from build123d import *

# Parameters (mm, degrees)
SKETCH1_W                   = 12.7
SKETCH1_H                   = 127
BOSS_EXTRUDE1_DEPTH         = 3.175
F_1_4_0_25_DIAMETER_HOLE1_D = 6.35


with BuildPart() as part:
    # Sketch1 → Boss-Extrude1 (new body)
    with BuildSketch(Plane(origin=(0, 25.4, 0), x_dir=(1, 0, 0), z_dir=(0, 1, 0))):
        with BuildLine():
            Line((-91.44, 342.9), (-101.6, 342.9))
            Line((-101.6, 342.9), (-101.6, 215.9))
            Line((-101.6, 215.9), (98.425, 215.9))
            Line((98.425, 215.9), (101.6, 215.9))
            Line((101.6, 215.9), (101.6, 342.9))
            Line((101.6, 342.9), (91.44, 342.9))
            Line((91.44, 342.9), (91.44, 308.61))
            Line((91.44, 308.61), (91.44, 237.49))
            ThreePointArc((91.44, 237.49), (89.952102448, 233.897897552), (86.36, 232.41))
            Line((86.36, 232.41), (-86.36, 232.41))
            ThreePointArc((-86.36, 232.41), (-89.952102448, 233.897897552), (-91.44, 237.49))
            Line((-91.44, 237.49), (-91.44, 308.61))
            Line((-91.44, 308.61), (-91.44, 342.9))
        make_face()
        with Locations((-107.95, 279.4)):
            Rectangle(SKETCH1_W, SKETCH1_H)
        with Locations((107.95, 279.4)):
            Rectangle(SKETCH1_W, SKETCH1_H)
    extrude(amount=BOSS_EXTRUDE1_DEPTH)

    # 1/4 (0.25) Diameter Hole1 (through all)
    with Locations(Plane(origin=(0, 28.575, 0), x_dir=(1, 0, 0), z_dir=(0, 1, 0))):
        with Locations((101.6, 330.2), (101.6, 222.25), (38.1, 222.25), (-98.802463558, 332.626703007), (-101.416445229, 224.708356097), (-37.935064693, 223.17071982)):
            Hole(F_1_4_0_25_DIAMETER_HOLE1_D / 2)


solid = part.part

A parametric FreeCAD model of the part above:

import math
import FreeCAD as App
import Part
import Sketcher
Q = App.Units.Quantity

doc = App.newDocument("Part")
body = doc.addObject("PartDesign::Body", "Body")

# Sketch on XZ plane
sketch1 = doc.addObject("Sketcher::SketchObject", "Sketch")
body.addObject(sketch1)
sketch1.AttachmentSupport = (doc.XZ_Plane, [""])
sketch1.MapMode = "FlatFace"
sketch1.AttachmentOffset = App.Placement(App.Vector(0, 0, -1 * 25.4), App.Rotation())
sketch1.addGeometry([
    Part.LineSegment(App.Vector(-91, -343, 0), App.Vector(-114, -343, 0)),  # 0
    Part.LineSegment(App.Vector(-114, -343, 0), App.Vector(-114, -216, 0)),  # 1
    Part.LineSegment(App.Vector(-114, -216, 0), App.Vector(114, -216, 0)),  # 2
    Part.LineSegment(App.Vector(114, -216, 0), App.Vector(114, -343, 0)),  # 3
    Part.LineSegment(App.Vector(114, -343, 0), App.Vector(91, -343, 0)),  # 4
    Part.LineSegment(App.Vector(91, -343, 0), App.Vector(91, -237, 0)),  # 5
    Part.ArcOfCircle(Part.Circle(App.Vector(86, -237, 0), App.Vector(0, 0, 1), 5), math.radians(0), math.radians(90)),  # 6
    Part.LineSegment(App.Vector(86, -232, 0), App.Vector(-86, -232, 0)),  # 7
    Part.ArcOfCircle(Part.Circle(App.Vector(-86, -237, 0), App.Vector(0, 0, 1), 5), math.radians(90), math.radians(180)),  # 8
    Part.LineSegment(App.Vector(-91, -237, 0), App.Vector(-91, -343, 0)),  # 9
], False)
sketch1.addConstraint([
    Sketcher.Constraint("Coincident", 0, 2, 1, 1),
    Sketcher.Constraint("Coincident", 1, 2, 2, 1),
    Sketcher.Constraint("Coincident", 2, 2, 3, 1),
    Sketcher.Constraint("Coincident", 3, 2, 4, 1),
    Sketcher.Constraint("Coincident", 4, 2, 5, 1),
    Sketcher.Constraint("Tangent", 5, 2, 6, 1),
    Sketcher.Constraint("Tangent", 6, 2, 7, 1),
    Sketcher.Constraint("Tangent", 7, 2, 8, 1),
    Sketcher.Constraint("Tangent", 8, 2, 9, 1),
    Sketcher.Constraint("Coincident", 9, 2, 0, 1),
    Sketcher.Constraint("Horizontal", 0),
    Sketcher.Constraint("Vertical", 1),
    Sketcher.Constraint("Horizontal", 2),
    Sketcher.Constraint("Vertical", 3),
    Sketcher.Constraint("Horizontal", 4),
    Sketcher.Constraint("Vertical", 5),
    Sketcher.Constraint("Horizontal", 7),
    Sketcher.Constraint("Vertical", 9),
    Sketcher.Constraint("Equal", 6, 8),
    Sketcher.Constraint("Symmetric", 0, 2, 3, 2, -2),
    Sketcher.Constraint("Equal", 0, 4),
    Sketcher.Constraint("Radius", 6, Q("0.2 in")),
    Sketcher.Constraint("DistanceX", 2, 1, 2, 2, Q("9 in")),
    Sketcher.Constraint("DistanceY", 1, 1, 1, 2, Q("5 in")),
    Sketcher.Constraint("DistanceX", 0, 2, 0, 1, Q("0.9 in")),
    Sketcher.Constraint("DistanceY", 5, 1, 5, 2, Q("4.15 in")),
    Sketcher.Constraint("DistanceY", 0, 2, -1, 1, Q("13.5 in")),
])
pad1 = doc.addObject("PartDesign::Pad", "Pad")
body.addObject(pad1)
pad1.Profile = sketch1
pad1.Length = Q("0.125 in")
pad1.Reversed = True

# Sketch on XZ plane
sketch2 = doc.addObject("Sketcher::SketchObject", "Sketch001")
body.addObject(sketch2)
sketch2.AttachmentSupport = (doc.XZ_Plane, [""])
sketch2.MapMode = "FlatFace"
sketch2.AttachmentOffset = App.Placement(App.Vector(0, 0, -1.125 * 25.4), App.Rotation())
sketch2.addGeometry([
    Part.Circle(App.Vector(101.6, -330.2, 0), App.Vector(0, 0, 1), 3.2),  # 0
    Part.Circle(App.Vector(101.6, -222.2, 0), App.Vector(0, 0, 1), 3.2),  # 1
    Part.Circle(App.Vector(38.1, -222.2, 0), App.Vector(0, 0, 1), 3.2),  # 2
    Part.Circle(App.Vector(-98.8, -332.6, 0), App.Vector(0, 0, 1), 3.2),  # 3
    Part.Circle(App.Vector(-101.4, -224.7, 0), App.Vector(0, 0, 1), 3.2),  # 4
    Part.Circle(App.Vector(-37.9, -223.2, 0), App.Vector(0, 0, 1), 3.2),  # 5
], False)
sketch2.addConstraint([
    Sketcher.Constraint("Equal", 0, 1),
    Sketcher.Constraint("Equal", 1, 2),
    Sketcher.Constraint("Equal", 2, 3),
    Sketcher.Constraint("Equal", 3, 4),
    Sketcher.Constraint("Equal", 4, 5),
    Sketcher.Constraint("Horizontal", 1, 3, 2, 3),
    Sketcher.Constraint("Vertical", 0, 3, 1, 3),
    Sketcher.Constraint("Diameter", 0, Q("0.25 in")),
    Sketcher.Constraint("DistanceX", -1, 1, 0, 3, Q("4 in")),
    Sketcher.Constraint("DistanceY", 0, 3, -1, 1, Q("13 in")),
    Sketcher.Constraint("DistanceX", -1, 1, 2, 3, Q("1.5 in")),
    Sketcher.Constraint("DistanceY", 1, 3, -1, 1, Q("8.75 in")),
    Sketcher.Constraint("DistanceX", 3, 3, 5, 3, Q("60.867399 mm")),
    Sketcher.Constraint("DistanceY", 5, 3, -1, 1, Q("223.17072 mm")),
    Sketcher.Constraint("DistanceX", 4, 3, 3, 3, Q("2.613982 mm")),
    Sketcher.Constraint("DistanceX", 3, 3, -1, 1, Q("98.802464 mm")),
    Sketcher.Constraint("DistanceY", 3, 3, -1, 1, Q("332.626703 mm")),
    Sketcher.Constraint("DistanceY", 4, 3, -1, 1, Q("224.708356 mm")),
])
doc.recompute()
hole = doc.addObject("PartDesign::Hole", "Hole")
body.addObject(hole)
hole.Profile = sketch2
hole.ThreadType = "None"
hole.Diameter = Q("0.25 in")
hole.DepthType = "ThroughAll"
hole.Reversed = True

doc.recompute()
